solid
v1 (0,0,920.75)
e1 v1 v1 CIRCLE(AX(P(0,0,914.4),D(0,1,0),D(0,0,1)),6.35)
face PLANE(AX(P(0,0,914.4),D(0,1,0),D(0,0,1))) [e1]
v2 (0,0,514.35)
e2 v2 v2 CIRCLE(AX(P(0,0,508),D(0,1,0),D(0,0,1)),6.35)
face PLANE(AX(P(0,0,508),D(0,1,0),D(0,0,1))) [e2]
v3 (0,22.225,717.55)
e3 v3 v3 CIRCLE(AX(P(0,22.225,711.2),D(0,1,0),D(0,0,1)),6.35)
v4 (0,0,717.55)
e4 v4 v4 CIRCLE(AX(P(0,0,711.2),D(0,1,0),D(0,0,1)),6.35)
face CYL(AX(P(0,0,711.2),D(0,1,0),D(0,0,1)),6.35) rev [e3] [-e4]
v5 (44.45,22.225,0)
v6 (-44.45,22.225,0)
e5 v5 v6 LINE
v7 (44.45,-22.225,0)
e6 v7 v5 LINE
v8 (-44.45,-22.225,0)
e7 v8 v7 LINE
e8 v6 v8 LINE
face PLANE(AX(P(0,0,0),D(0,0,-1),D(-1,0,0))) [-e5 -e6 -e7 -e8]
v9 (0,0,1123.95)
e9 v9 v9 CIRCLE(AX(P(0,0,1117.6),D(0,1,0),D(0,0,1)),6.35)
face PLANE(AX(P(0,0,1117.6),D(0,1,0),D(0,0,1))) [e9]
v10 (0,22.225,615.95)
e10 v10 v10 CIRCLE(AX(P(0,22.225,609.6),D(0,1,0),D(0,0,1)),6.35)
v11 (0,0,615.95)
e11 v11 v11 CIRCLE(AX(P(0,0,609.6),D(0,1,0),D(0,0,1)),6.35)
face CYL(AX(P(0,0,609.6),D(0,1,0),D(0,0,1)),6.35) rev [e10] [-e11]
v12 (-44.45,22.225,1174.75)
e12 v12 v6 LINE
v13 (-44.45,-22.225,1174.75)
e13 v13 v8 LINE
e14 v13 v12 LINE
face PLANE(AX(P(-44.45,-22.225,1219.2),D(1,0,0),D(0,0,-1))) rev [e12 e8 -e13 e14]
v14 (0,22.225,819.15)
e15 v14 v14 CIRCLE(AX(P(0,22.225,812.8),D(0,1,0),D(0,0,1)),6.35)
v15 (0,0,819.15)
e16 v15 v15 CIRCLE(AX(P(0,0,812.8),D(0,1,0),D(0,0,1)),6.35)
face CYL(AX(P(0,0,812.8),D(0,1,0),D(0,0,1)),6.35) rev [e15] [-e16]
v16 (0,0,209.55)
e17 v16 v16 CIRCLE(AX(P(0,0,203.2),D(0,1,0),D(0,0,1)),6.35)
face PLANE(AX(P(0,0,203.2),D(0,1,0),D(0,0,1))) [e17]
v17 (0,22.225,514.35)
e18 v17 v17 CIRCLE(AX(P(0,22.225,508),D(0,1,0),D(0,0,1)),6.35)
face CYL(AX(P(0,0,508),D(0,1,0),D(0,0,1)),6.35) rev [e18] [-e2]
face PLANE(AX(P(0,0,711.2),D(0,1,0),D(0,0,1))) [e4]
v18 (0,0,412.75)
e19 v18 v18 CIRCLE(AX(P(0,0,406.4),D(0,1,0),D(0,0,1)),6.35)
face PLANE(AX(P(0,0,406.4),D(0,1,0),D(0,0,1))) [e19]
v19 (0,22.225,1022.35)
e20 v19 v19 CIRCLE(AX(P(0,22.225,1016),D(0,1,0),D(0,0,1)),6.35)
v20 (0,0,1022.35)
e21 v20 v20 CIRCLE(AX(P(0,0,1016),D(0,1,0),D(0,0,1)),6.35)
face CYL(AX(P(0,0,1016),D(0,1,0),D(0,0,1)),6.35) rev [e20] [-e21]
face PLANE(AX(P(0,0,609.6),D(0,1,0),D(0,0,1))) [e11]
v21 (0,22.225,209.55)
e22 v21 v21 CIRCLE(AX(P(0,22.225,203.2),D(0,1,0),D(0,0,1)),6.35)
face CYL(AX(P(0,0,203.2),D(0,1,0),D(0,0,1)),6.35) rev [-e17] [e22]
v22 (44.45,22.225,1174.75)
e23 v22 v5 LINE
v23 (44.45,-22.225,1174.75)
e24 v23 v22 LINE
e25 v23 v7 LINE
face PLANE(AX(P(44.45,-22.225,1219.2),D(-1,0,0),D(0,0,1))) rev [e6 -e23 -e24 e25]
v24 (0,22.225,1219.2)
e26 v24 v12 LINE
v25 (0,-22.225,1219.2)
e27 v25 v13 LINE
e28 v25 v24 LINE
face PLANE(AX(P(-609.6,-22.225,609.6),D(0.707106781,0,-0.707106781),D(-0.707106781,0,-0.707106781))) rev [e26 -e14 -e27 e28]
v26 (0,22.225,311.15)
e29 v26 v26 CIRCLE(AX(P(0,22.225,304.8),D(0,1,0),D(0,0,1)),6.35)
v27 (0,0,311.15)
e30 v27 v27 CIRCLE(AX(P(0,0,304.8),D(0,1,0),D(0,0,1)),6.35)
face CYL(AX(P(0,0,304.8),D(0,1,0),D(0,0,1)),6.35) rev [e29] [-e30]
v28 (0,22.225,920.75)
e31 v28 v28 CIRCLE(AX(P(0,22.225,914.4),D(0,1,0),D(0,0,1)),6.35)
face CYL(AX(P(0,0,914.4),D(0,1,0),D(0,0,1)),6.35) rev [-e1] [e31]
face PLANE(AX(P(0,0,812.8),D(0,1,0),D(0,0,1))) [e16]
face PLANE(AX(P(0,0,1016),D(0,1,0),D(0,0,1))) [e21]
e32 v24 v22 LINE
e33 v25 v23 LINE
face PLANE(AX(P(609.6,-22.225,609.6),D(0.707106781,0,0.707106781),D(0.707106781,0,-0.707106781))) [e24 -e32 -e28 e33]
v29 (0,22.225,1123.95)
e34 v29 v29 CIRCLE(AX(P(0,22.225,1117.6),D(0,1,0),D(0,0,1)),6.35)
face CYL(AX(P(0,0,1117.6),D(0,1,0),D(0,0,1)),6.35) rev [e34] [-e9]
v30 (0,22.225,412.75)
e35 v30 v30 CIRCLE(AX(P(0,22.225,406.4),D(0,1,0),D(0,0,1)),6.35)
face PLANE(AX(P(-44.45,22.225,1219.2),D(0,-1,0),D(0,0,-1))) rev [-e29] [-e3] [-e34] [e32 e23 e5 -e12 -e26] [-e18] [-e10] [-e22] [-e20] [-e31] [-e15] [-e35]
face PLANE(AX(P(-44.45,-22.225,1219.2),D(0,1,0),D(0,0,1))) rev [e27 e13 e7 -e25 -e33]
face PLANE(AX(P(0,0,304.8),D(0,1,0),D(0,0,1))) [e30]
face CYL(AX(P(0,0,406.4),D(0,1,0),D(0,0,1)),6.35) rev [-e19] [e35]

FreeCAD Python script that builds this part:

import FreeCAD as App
import Part
import Sketcher
Q = App.Units.Quantity


def add_polygon(sketch, points):
    """Adds a closed chain of lines whose ends are joined by coincident constraints."""
    first, n = sketch.GeometryCount, len(points)
    for a, b in zip(points, points[1:] + points[:1]):
        sketch.addGeometry(Part.LineSegment(App.Vector(*a, 0), App.Vector(*b, 0)), False)
    for i in range(n):
        sketch.addConstraint(Sketcher.Constraint("Coincident", first + i, 2, first + (i + 1) % n, 1))

doc = App.newDocument("Part")
body = doc.addObject("PartDesign::Body", "Body")

# Sketch on XY plane
sketch1 = body.newObject("Sketcher::SketchObject", "Sketch")
sketch1.AttachmentSupport = (doc.getObject("XY_Plane"), [""])
sketch1.MapMode = "FlatFace"
add_polygon(sketch1, [(-44, 22), (-44, -22), (44, -22), (44, 22)])  # lines 0-3
sketch1.addConstraint(Sketcher.Constraint("Vertical", 0))
sketch1.addConstraint(Sketcher.Constraint("Horizontal", 1))
sketch1.addConstraint(Sketcher.Constraint("Vertical", 2))
sketch1.addConstraint(Sketcher.Constraint("Horizontal", 3))
sketch1.addConstraint(Sketcher.Constraint("Symmetric", 0, 2, 2, 2, -1, 1))
sketch1.addConstraint(Sketcher.Constraint("DistanceX", 1, 1, 1, 2, Q("3.5 in")))
sketch1.addConstraint(Sketcher.Constraint("DistanceY", 0, 2, 0, 1, Q("1.75 in")))
pad1 = body.newObject("PartDesign::Pad", "Pad")
pad1.Profile = sketch1
pad1.Length = Q("48 in")

# Sketch on XZ plane
sketch2 = body.newObject("Sketcher::SketchObject", "Sketch001")
sketch2.AttachmentSupport = (doc.getObject("XZ_Plane"), [""])
sketch2.MapMode = "FlatFace"
sketch2.AttachmentOffset = App.Placement(App.Vector(0, 0, -0.875 * 25.4), App.Rotation())
add_polygon(sketch2, [(-44, 1219), (0, 1219), (-44, 1175)])  # lines 0-2
add_polygon(sketch2, [(44, 1175), (0, 1219), (44, 1219)])  # lines 3-5
sketch2.addConstraint(Sketcher.Constraint("Horizontal", 0))
sketch2.addConstraint(Sketcher.Constraint("Vertical", 2))
sketch2.addConstraint(Sketcher.Constraint("Horizontal", 4))
sketch2.addConstraint(Sketcher.Constraint("Vertical", 5))
sketch2.addConstraint(Sketcher.Constraint("Coincident", 3, 2, 0, 2))
sketch2.addConstraint(Sketcher.Constraint("Symmetric", 1, 2, 5, 2, -2))
sketch2.addConstraint(Sketcher.Constraint("PointOnObject", 0, 2, -2))
sketch2.addConstraint(Sketcher.Constraint("Perpendicular", 1, 3))
sketch2.addConstraint(Sketcher.Constraint("DistanceY", -1, 1, 0, 2, Q("48 in")))
sketch2.addConstraint(Sketcher.Constraint("DistanceX", 0, 1, 0, 2, Q("1.75 in")))
pocket1 = body.newObject("PartDesign::Pocket", "Pocket")
pocket1.Profile = sketch2
pocket1.Type = "ThroughAll"
pocket1.Reversed = True

# Sketch on XZ plane
sketch3 = body.newObject("Sketcher::SketchObject", "Sketch002")
sketch3.AttachmentSupport = (doc.getObject("XZ_Plane"), [""])
sketch3.MapMode = "FlatFace"
sketch3.AttachmentOffset = App.Placement(App.Vector(0, 0, -0.875 * 25.4), App.Rotation())
sketch3.addGeometry(Part.Circle(App.Vector(0, 1118, 0), App.Vector(0, 0, 1), 6), False)
sketch3.addConstraint(Sketcher.Constraint("PointOnObject", 0, 3, -2))
sketch3.addConstraint(Sketcher.Constraint("Diameter", 0, Q("0.5 in")))
sketch3.addConstraint(Sketcher.Constraint("DistanceY", -1, 1, 0, 3, Q("44 in")))
pocket2 = body.newObject("PartDesign::Pocket", "Pocket001")
pocket2.Profile = sketch3
pocket2.Length = Q("0.875 in")
pocket2.Reversed = True
doc.recompute()

linearpattern = body.newObject("PartDesign::LinearPattern", "LinearPattern")
linearpattern.Originals = [pocket2]
linearpattern.Direction = (doc.getObject("Z_Axis"), [""])
linearpattern.Mode = "offset"
linearpattern.Offset = Q("4 in")
linearpattern.Occurrences = 10
linearpattern.Reversed = True
body.Tip = linearpattern

doc.recompute()
